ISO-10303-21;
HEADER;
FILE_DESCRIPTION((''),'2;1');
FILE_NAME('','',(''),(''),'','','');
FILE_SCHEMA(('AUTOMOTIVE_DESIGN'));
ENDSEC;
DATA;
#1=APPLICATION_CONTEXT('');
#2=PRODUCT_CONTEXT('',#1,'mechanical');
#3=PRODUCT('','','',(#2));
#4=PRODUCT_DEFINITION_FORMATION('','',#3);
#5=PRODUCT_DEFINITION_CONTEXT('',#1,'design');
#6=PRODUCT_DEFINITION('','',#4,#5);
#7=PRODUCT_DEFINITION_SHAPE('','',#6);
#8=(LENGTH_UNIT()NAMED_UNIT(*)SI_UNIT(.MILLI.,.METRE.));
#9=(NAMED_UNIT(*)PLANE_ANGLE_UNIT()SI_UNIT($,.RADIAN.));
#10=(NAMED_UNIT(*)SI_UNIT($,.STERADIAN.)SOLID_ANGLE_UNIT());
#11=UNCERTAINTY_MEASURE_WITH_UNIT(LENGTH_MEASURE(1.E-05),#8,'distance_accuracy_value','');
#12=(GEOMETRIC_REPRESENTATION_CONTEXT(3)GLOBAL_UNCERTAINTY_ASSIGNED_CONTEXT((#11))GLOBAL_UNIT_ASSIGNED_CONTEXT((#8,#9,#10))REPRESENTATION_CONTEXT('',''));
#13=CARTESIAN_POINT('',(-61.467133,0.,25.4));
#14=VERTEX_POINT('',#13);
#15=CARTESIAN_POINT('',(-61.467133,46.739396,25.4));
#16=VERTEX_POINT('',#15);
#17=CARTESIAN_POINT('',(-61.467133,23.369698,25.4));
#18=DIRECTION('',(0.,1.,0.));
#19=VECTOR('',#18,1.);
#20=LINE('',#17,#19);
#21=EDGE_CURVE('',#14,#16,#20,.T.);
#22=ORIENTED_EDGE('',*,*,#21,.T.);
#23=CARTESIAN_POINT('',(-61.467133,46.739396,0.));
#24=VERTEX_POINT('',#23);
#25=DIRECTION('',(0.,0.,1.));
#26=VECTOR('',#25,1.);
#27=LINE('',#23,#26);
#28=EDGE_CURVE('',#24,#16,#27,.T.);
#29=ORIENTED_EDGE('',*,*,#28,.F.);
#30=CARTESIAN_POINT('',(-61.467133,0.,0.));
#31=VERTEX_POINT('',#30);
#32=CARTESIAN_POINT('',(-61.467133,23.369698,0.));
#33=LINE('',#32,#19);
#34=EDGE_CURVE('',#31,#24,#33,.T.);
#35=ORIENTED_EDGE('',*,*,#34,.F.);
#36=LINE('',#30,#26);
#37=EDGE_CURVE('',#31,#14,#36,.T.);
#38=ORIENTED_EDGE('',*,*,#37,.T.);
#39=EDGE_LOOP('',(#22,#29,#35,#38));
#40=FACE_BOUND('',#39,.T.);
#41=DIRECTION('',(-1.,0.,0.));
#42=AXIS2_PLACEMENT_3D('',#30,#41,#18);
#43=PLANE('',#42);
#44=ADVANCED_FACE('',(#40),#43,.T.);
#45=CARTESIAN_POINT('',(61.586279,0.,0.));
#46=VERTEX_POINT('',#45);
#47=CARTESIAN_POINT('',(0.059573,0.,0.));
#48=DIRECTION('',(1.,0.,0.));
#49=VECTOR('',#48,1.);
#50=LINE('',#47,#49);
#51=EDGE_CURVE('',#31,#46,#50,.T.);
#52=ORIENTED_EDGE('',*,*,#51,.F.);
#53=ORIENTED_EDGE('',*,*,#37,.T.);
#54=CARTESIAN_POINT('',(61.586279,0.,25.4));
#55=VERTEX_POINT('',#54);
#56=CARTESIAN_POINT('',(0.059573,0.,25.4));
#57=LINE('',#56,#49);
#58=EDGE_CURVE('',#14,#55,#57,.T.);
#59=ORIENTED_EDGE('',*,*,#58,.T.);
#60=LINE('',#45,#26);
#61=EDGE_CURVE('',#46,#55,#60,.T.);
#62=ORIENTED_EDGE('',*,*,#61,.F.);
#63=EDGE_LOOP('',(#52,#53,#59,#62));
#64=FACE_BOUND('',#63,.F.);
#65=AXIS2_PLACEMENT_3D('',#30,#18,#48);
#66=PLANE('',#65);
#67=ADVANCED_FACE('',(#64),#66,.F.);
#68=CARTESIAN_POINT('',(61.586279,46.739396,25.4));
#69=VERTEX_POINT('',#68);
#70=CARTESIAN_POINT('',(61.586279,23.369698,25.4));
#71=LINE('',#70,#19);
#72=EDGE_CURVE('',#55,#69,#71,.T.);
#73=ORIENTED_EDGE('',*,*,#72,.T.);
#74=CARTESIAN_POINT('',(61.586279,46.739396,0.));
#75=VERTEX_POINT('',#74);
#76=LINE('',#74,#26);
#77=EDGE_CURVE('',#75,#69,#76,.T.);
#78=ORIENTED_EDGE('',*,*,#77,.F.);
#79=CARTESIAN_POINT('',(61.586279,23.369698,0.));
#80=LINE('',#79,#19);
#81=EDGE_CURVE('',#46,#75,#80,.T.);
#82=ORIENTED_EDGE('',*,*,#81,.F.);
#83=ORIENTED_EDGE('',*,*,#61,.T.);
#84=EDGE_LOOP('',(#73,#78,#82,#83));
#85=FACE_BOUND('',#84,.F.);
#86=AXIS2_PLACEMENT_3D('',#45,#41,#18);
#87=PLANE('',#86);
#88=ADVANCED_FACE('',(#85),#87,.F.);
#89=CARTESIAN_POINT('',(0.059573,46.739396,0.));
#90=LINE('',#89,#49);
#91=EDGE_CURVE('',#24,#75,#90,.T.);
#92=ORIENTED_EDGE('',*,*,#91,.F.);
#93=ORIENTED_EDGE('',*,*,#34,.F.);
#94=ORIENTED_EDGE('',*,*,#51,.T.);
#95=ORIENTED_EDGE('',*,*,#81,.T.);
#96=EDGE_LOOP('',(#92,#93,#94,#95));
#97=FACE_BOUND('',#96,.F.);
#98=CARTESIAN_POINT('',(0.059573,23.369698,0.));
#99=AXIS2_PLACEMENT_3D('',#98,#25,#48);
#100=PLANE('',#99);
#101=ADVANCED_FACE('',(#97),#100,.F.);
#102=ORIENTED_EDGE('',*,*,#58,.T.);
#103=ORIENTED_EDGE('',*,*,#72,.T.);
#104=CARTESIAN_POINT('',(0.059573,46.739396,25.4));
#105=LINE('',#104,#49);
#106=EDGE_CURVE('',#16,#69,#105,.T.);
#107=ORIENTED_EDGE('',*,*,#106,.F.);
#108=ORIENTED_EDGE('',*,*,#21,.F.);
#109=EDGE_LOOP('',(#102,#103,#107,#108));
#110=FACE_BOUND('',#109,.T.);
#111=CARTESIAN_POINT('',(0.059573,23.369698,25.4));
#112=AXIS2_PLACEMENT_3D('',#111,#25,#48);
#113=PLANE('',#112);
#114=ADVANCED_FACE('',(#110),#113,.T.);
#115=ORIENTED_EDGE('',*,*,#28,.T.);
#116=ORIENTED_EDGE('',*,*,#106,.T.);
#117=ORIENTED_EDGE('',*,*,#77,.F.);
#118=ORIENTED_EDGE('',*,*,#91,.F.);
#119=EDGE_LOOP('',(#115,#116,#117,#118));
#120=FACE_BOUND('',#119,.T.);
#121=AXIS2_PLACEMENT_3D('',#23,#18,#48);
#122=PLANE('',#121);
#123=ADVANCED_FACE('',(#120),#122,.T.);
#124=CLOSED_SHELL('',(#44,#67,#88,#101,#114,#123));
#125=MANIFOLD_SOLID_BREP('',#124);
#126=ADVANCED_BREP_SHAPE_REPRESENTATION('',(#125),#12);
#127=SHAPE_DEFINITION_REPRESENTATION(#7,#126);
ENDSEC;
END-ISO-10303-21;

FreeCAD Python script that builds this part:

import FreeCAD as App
import Part
import Sketcher
from FreeCAD import Vector
Q = App.Units.Quantity

doc = App.newDocument("Part")
body = doc.addObject("PartDesign::Body", "Body")

# Sketch on XY plane
sketch1 = doc.addObject("Sketcher::SketchObject", "Sketch")
body.addObject(sketch1)
sketch1.AttachmentSupport = (doc.XY_Plane, [""])
sketch1.MapMode = "FlatFace"
sketch1.addGeometry([
    Part.LineSegment(Vector(-61, 47, 0), Vector(-61, 0, 0)),
    Part.LineSegment(Vector(-61, 0, 0), Vector(62, 0, 0)),
    Part.LineSegment(Vector(62, 0, 0), Vector(62, 47, 0)),
    Part.LineSegment(Vector(62, 47, 0), Vector(-61, 47, 0)),
], False)
sketch1.addConstraint([
    Sketcher.Constraint("Coincident", 0, 2, 1, 1),
    Sketcher.Constraint("Coincident", 1, 2, 2, 1),
    Sketcher.Constraint("Coincident", 2, 2, 3, 1),
    Sketcher.Constraint("Coincident", 3, 2, 0, 1),
    Sketcher.Constraint("Vertical", 0),
    Sketcher.Constraint("Horizontal", 1),
    Sketcher.Constraint("Vertical", 2),
    Sketcher.Constraint("Horizontal", 3),
    Sketcher.Constraint("PointOnObject", 0, 2, -1),
    Sketcher.Constraint("DistanceX", 1, 1, 1, 2, 123.053412),
    Sketcher.Constraint("DistanceY", 0, 2, 0, 1, 46.739396),
    Sketcher.Constraint("DistanceX", -1, 1, 1, 2, 61.586279),
])
pad1 = doc.addObject("PartDesign::Pad", "Pad")
body.addObject(pad1)
pad1.Profile = sketch1
pad1.Length = Q("1 in")

doc.recompute()
